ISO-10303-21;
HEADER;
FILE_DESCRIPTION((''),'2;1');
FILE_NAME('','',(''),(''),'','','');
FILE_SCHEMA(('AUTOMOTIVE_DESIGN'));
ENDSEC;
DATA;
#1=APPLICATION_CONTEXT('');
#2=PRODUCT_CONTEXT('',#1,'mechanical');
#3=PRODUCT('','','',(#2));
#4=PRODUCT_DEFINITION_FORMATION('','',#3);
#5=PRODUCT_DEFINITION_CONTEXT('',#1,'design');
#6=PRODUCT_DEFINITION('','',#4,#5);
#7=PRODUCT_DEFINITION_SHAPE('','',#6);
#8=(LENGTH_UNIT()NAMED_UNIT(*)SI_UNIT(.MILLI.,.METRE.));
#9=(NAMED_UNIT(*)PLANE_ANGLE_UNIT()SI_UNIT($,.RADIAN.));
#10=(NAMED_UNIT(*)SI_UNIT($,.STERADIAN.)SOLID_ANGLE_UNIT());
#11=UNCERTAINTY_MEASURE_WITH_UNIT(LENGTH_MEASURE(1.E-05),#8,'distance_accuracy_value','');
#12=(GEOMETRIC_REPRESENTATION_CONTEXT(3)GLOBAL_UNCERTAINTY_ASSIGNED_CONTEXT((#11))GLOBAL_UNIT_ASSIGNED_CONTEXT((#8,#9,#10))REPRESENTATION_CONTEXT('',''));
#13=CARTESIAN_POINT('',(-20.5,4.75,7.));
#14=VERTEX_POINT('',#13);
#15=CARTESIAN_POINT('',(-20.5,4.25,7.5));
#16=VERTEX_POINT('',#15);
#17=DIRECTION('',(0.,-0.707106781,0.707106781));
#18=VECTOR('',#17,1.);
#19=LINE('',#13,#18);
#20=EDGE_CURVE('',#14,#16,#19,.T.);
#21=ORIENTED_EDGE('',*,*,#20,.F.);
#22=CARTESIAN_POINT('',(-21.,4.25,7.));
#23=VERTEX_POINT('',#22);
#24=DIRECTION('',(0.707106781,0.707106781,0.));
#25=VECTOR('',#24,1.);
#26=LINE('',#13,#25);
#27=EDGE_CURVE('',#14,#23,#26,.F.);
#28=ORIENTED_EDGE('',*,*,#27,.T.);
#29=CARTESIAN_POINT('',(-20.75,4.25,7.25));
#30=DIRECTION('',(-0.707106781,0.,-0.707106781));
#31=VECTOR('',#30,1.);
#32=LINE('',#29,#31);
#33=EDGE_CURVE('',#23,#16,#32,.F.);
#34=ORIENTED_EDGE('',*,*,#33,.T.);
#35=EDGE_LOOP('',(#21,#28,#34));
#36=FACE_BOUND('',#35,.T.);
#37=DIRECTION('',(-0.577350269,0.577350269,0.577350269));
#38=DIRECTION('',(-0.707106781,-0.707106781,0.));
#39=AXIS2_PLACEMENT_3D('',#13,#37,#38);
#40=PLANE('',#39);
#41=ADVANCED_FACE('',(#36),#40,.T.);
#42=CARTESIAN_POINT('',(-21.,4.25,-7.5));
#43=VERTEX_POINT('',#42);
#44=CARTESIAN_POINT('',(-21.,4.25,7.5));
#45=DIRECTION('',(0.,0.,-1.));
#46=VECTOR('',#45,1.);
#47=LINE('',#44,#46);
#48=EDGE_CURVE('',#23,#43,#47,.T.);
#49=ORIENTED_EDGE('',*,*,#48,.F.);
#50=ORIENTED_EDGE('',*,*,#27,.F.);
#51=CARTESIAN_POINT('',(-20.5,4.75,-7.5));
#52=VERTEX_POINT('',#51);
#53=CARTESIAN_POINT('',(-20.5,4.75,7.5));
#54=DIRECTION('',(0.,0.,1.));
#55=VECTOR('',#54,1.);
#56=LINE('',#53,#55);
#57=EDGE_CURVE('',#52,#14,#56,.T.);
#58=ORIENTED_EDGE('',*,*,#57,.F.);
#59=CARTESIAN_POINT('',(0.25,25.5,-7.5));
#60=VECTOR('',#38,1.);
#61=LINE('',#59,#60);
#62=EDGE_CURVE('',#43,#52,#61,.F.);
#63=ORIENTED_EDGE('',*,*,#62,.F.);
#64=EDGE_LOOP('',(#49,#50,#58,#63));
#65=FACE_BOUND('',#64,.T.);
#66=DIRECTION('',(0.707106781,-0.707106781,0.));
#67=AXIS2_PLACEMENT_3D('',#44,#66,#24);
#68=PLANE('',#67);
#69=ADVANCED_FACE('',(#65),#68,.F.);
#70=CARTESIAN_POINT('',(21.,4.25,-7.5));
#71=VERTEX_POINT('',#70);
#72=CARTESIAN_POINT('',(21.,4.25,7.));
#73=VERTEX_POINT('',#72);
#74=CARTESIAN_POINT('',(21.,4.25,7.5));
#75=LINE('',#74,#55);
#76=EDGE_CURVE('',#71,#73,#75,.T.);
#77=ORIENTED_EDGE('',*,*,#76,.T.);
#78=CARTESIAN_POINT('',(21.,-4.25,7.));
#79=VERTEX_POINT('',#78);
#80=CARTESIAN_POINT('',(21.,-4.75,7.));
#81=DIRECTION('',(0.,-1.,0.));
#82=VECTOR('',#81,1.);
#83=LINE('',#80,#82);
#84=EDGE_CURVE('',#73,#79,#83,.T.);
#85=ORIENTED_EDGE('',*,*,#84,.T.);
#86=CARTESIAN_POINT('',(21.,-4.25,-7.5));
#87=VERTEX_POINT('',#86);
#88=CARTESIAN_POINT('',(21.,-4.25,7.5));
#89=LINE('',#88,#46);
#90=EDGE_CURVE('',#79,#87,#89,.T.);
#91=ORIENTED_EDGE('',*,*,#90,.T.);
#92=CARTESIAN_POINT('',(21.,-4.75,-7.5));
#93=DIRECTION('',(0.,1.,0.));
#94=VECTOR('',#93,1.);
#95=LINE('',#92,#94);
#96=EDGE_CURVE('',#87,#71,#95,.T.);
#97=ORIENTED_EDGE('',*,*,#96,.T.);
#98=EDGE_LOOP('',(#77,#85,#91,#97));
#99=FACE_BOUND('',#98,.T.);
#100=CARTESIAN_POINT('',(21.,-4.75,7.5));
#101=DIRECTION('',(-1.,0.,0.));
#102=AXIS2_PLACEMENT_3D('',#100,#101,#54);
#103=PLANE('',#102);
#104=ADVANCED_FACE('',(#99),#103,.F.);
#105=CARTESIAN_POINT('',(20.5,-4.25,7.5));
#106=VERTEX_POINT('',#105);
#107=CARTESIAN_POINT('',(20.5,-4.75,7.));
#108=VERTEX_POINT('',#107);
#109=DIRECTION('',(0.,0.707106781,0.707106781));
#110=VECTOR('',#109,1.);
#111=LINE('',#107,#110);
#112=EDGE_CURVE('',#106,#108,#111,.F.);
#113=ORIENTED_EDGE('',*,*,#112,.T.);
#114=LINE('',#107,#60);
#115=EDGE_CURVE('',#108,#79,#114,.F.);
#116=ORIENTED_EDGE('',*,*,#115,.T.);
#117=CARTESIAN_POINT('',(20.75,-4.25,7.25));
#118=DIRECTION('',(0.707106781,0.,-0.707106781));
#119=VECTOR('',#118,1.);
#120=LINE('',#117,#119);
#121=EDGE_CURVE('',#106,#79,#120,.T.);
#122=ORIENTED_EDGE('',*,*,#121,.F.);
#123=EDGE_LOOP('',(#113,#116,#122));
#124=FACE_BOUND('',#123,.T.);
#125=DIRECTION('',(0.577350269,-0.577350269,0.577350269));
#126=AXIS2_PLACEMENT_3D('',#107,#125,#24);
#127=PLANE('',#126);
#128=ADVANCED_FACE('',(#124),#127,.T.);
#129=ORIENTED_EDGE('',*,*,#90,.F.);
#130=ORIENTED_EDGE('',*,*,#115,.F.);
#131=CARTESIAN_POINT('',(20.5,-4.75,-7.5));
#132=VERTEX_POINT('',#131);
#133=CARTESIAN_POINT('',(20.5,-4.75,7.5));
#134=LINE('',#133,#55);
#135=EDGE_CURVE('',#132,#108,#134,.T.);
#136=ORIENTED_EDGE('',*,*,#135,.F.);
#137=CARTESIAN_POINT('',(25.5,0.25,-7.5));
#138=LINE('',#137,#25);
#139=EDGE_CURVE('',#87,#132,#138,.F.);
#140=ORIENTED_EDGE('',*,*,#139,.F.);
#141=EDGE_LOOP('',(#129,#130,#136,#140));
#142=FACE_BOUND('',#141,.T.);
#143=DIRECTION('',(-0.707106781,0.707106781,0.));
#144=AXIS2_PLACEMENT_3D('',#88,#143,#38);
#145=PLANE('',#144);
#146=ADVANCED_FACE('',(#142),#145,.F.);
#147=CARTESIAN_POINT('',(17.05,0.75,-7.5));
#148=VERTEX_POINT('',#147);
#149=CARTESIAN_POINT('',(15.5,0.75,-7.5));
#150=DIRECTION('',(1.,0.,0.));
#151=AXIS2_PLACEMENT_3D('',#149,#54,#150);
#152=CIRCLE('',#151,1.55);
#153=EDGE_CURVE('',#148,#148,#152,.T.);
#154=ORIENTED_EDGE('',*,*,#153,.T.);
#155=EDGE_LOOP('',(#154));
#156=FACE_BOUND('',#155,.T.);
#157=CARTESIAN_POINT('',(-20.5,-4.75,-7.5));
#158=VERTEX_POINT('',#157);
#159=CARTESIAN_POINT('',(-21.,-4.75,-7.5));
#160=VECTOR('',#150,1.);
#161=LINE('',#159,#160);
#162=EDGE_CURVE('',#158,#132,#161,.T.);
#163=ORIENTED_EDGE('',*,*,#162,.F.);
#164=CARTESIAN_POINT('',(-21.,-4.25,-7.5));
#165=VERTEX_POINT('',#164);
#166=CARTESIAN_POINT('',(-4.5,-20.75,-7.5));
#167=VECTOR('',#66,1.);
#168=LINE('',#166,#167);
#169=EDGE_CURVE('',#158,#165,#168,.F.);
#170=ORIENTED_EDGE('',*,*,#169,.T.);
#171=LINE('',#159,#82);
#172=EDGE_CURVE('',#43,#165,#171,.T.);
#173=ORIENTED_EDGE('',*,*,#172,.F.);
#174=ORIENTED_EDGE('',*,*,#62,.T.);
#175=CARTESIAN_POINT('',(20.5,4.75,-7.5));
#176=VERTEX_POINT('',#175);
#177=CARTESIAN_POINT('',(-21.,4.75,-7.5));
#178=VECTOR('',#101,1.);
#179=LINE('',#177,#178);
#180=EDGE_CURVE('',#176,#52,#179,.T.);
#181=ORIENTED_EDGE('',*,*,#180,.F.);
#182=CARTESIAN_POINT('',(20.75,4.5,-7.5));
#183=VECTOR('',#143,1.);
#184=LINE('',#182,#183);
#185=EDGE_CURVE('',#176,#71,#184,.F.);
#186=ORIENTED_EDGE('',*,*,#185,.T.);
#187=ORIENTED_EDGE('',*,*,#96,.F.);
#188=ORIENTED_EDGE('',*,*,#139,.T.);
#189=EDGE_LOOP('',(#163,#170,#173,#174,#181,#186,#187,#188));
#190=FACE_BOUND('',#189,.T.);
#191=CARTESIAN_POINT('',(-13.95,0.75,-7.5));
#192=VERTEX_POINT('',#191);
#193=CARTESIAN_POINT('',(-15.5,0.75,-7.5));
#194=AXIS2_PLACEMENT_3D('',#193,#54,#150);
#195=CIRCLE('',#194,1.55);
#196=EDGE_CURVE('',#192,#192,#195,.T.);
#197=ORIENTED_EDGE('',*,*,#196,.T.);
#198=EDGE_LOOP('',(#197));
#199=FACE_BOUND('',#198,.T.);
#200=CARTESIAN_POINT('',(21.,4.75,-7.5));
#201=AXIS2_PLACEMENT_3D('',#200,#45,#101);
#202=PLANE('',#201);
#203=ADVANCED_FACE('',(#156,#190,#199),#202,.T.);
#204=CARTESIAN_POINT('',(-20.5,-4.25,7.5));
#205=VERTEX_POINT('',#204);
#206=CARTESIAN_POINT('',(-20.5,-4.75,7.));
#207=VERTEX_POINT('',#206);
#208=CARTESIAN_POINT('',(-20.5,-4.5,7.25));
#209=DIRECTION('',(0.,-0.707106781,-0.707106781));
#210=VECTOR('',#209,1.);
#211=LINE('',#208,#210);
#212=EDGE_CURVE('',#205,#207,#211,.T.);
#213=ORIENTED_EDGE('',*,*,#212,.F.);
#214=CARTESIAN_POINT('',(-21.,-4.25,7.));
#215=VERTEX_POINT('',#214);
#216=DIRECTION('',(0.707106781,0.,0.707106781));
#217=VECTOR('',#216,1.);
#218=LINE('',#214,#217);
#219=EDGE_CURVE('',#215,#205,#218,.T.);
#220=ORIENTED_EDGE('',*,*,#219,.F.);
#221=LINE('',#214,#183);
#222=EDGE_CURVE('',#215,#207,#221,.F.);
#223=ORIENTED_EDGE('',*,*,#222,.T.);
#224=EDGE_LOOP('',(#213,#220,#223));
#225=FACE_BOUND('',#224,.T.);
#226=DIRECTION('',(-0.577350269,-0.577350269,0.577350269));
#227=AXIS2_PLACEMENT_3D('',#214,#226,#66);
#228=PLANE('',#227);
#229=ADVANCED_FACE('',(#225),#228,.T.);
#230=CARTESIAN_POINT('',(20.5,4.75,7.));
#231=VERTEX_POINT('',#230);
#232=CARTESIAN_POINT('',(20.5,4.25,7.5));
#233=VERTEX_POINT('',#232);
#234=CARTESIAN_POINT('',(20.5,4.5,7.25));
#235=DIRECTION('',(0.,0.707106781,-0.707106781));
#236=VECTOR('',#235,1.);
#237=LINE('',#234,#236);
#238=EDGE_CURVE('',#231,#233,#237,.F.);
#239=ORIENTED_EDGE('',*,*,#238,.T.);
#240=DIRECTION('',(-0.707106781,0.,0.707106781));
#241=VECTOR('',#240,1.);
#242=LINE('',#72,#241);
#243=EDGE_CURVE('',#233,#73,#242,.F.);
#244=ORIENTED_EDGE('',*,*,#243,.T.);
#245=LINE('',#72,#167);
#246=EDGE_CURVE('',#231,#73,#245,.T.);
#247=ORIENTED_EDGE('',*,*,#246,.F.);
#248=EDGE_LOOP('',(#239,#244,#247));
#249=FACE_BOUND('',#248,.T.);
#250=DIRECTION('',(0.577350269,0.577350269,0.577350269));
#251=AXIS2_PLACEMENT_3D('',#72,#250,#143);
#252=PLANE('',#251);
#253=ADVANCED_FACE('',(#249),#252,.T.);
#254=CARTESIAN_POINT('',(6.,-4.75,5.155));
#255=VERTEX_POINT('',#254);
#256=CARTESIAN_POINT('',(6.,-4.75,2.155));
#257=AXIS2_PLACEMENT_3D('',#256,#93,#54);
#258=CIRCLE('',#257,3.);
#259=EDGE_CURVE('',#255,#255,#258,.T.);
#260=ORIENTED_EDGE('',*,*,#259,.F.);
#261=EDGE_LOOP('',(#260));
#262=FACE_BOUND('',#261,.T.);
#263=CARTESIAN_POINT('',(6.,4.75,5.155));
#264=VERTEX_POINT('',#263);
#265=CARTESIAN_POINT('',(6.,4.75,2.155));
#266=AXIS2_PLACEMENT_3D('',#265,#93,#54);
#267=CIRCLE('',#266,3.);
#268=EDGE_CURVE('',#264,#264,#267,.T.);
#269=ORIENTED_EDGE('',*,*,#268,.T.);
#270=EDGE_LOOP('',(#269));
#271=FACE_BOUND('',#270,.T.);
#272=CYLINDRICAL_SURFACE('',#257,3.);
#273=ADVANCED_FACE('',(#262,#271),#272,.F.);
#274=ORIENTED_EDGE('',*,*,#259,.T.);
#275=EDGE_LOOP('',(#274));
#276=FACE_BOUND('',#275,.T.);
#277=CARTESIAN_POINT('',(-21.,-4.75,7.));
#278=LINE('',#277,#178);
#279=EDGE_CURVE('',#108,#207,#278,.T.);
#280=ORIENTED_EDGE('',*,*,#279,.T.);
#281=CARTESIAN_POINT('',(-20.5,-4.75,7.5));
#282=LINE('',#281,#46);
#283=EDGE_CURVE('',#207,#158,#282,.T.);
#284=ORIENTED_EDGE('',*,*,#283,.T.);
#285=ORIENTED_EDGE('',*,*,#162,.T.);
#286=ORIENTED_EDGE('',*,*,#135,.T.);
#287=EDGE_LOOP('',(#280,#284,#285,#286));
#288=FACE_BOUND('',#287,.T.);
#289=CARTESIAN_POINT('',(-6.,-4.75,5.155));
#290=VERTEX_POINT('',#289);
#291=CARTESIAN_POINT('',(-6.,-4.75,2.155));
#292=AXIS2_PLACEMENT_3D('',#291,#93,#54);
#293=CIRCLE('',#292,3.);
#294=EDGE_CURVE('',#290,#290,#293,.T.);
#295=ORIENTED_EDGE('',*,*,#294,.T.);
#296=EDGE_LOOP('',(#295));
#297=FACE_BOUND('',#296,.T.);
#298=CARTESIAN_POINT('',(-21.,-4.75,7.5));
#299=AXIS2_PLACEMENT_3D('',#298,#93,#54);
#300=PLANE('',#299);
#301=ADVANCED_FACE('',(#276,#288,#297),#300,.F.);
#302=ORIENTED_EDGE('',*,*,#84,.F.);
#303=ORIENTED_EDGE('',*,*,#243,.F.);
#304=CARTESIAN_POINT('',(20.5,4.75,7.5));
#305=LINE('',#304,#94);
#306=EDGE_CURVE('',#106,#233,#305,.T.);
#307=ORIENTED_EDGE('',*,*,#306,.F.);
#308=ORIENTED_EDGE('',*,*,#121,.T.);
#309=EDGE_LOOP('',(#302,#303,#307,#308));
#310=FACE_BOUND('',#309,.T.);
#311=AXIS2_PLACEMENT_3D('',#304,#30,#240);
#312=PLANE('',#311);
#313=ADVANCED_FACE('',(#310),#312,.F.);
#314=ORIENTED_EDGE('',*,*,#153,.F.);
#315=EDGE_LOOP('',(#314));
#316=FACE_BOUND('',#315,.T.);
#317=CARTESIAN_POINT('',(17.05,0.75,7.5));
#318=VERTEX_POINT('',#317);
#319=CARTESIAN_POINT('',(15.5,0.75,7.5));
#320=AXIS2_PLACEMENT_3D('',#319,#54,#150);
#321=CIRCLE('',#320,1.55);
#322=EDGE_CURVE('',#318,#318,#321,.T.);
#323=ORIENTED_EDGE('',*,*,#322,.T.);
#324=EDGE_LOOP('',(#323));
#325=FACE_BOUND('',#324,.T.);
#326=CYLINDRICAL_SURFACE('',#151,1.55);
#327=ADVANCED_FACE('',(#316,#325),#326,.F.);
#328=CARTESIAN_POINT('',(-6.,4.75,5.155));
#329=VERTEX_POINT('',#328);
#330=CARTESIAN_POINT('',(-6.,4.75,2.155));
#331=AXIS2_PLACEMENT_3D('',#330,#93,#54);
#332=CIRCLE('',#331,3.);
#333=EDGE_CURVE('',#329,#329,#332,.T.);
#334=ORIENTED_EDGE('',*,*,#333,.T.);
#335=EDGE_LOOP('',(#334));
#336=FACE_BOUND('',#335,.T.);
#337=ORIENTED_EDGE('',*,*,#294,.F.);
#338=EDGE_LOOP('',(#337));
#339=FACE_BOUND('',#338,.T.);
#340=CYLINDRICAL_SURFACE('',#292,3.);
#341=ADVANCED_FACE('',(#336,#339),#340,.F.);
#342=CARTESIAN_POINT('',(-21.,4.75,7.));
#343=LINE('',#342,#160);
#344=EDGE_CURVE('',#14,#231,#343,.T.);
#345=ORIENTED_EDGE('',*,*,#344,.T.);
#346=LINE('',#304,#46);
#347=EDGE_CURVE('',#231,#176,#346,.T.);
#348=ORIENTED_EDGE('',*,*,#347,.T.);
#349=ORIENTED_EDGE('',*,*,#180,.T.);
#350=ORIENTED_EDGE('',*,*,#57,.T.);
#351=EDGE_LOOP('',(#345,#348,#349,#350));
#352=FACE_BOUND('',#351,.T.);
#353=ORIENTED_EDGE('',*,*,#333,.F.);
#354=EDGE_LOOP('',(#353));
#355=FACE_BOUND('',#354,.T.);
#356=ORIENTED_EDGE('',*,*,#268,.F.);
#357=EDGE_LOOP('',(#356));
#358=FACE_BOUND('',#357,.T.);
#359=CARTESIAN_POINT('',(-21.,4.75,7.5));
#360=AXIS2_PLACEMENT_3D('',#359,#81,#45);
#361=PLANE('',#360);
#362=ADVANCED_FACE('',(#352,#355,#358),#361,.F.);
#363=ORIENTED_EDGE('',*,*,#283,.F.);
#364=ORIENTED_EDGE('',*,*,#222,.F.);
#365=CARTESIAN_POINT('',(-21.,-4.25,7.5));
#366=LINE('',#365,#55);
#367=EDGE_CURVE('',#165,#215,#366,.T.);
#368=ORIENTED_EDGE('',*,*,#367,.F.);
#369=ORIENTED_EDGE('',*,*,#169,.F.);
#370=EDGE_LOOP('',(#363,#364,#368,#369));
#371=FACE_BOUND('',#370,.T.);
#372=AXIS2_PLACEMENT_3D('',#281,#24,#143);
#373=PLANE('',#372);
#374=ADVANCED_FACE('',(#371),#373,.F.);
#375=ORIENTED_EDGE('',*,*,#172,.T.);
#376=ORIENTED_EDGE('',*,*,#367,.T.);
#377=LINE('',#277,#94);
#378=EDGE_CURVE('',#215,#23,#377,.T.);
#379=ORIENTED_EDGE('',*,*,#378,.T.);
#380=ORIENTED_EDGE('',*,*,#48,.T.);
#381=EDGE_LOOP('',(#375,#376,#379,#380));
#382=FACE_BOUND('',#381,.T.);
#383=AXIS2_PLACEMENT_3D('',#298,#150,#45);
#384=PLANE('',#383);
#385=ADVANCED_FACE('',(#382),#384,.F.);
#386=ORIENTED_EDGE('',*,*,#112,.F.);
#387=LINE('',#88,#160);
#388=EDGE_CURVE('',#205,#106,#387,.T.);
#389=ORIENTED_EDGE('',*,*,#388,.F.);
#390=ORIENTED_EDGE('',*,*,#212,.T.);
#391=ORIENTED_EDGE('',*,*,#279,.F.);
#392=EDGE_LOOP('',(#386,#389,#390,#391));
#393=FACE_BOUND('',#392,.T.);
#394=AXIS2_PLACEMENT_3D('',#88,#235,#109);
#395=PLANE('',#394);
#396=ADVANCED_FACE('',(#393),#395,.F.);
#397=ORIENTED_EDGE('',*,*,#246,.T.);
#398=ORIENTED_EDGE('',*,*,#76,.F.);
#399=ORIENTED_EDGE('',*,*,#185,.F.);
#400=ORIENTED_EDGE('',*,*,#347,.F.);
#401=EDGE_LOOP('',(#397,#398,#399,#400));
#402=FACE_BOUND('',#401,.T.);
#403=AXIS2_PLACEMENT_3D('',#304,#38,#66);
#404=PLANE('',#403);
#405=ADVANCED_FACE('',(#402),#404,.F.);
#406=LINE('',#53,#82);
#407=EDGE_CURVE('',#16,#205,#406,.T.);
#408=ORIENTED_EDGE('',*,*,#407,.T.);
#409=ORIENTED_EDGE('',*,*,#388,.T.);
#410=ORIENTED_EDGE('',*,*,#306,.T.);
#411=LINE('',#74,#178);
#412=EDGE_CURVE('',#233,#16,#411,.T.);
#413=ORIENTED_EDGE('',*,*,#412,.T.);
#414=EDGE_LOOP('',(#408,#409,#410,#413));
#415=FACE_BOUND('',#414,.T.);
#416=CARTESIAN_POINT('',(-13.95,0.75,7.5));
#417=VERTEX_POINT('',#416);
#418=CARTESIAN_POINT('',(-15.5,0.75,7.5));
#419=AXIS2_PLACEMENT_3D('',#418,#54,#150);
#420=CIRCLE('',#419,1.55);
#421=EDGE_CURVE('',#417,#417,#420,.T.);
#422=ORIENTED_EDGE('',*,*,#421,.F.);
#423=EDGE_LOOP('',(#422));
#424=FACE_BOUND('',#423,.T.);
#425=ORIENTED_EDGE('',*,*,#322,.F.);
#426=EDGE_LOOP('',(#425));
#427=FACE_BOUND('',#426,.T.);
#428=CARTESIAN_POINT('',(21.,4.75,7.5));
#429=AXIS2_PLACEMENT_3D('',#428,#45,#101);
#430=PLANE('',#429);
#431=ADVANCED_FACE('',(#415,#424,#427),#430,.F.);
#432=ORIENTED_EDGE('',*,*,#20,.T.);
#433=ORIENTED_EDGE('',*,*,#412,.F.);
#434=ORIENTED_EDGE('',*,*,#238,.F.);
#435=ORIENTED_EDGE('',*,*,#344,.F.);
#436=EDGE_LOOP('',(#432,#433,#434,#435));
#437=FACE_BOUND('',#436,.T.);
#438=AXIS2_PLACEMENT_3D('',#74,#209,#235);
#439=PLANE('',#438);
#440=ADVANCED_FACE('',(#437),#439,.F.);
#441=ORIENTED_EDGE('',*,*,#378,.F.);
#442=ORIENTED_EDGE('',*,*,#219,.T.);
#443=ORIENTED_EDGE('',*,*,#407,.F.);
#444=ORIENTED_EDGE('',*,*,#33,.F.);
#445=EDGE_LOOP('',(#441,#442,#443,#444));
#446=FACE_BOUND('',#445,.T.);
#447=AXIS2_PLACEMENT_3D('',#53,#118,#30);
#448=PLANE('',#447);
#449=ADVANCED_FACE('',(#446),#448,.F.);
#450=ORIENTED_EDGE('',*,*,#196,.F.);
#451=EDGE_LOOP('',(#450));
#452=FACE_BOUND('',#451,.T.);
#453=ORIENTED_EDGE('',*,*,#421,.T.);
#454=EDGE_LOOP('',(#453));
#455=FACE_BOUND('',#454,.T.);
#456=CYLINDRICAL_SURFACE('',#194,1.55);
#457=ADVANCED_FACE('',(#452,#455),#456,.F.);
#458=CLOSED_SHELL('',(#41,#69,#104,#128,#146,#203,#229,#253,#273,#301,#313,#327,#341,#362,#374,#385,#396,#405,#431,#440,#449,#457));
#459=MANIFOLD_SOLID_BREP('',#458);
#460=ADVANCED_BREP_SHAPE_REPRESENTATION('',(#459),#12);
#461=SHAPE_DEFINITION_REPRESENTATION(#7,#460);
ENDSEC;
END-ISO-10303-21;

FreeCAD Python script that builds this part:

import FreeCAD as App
import Part
import Sketcher

V = App.Vector
Q = App.Units.Quantity


def edges_at(feature, points):
    """Names of the edges that pass closest to the given points."""
    edges = feature.Shape.Edges
    near = lambda p: min(range(len(edges)), key=lambda i: edges[i].distToShape(Part.Vertex(*p))[0])
    return sorted({f"Edge{near(p) + 1}" for p in points})


def add_polygon(sketch, points):
    """Adds a closed chain of lines whose ends are joined by coincident constraints."""
    first, n = sketch.GeometryCount, len(points)
    for a, b in zip(points, points[1:] + points[:1]):
        sketch.addGeometry(Part.LineSegment(App.Vector(*a, 0), App.Vector(*b, 0)), False)
    for i in range(n):
        sketch.addConstraint(Sketcher.Constraint("Coincident", first + i, 2, first + (i + 1) % n, 1))

doc = App.newDocument("Part")
params = doc.addObject("Spreadsheet::Sheet", "Params")
for row, (alias, value) in enumerate([
    ("sketch1_width", "42 mm"),
    ("sketch1_height", "9.5 mm"),
    ("pad1_length", "15 mm"),
    ("sketch2_diameter", "3.1 mm"),
    ("sketch3_diameter", "6 mm"),
    ("chamfer_size", "0.5 mm"),
], start=1):
    params.set(f"A{row}", alias)
    params.set(f"B{row}", "=" + value)
    params.setAlias(f"B{row}", alias)

body = doc.addObject("PartDesign::Body", "Body")

# Sketch on XY plane
sketch1 = body.newObject("Sketcher::SketchObject", "Sketch")
sketch1.AttachmentSupport = (doc.getObject("XY_Plane"), [""])
sketch1.MapMode = "FlatFace"
add_polygon(sketch1, [(-21, 5), (-21, -5), (21, -5), (21, 5)])  # lines 0-3
sketch1.addConstraint(Sketcher.Constraint("Vertical", 0))
sketch1.addConstraint(Sketcher.Constraint("Horizontal", 1))
sketch1.addConstraint(Sketcher.Constraint("Vertical", 2))
sketch1.addConstraint(Sketcher.Constraint("Horizontal", 3))
sketch1.addConstraint(Sketcher.Constraint("Symmetric", 0, 2, 2, 2, -1, 1))
sketch1.addConstraint(Sketcher.Constraint("DistanceX", 1, 1, 1, 2, Q("42 mm")))
sketch1.addConstraint(Sketcher.Constraint("DistanceY", 0, 2, 0, 1, Q("9.5 mm")))
sketch1.setExpression("Constraints[9]", "Params.sketch1_width")
sketch1.setExpression("Constraints[10]", "Params.sketch1_height")
pad1 = body.newObject("PartDesign::Pad", "Pad")
pad1.Profile = sketch1
pad1.setExpression("Length", "Params.pad1_length")
pad1.Midplane = True

# Sketch on XY plane
sketch2 = body.newObject("Sketcher::SketchObject", "Sketch001")
sketch2.AttachmentSupport = (doc.getObject("XY_Plane"), [""])
sketch2.MapMode = "FlatFace"
sketch2.AttachmentOffset = App.Placement(V(0, 0, 7.5), App.Rotation())
sketch2.addGeometry(Part.Circle(V(-15.5, 0.8, 0), V(0, 0, 1), 1.6), False)
sketch2.addGeometry(Part.Circle(V(15.5, 0.8, 0), V(0, 0, 1), 1.6), False)
sketch2.addConstraint(Sketcher.Constraint("Equal", 0, 1))
sketch2.addConstraint(Sketcher.Constraint("Symmetric", 0, 3, 1, 3, -2))
sketch2.addConstraint(Sketcher.Constraint("Diameter", 0, Q("3.1 mm")))
sketch2.addConstraint(Sketcher.Constraint("DistanceX", 0, 3, 1, 3, Q("31 mm")))
sketch2.addConstraint(Sketcher.Constraint("DistanceY", -1, 1, 0, 3, Q("0.75 mm")))
sketch2.setExpression("Constraints[2]", "Params.sketch2_diameter")
pocket1 = body.newObject("PartDesign::Pocket", "Pocket")
pocket1.Profile = sketch2
pocket1.Type = "ThroughAll"

# Sketch on XZ plane
sketch3 = body.newObject("Sketcher::SketchObject", "Sketch002")
sketch3.AttachmentSupport = (doc.getObject("XZ_Plane"), [""])
sketch3.MapMode = "FlatFace"
sketch3.AttachmentOffset = App.Placement(V(0, 0, -4.75), App.Rotation())
sketch3.addGeometry(Part.Circle(V(6, 2.2, 0), V(0, 0, 1), 3), False)
sketch3.addGeometry(Part.Circle(V(-6, 2.2, 0), V(0, 0, 1), 3), False)
sketch3.addConstraint(Sketcher.Constraint("Equal", 0, 1))
sketch3.addConstraint(Sketcher.Constraint("Symmetric", 0, 3, 1, 3, -2))
sketch3.addConstraint(Sketcher.Constraint("Diameter", 0, Q("6 mm")))
sketch3.addConstraint(Sketcher.Constraint("DistanceX", -1, 1, 0, 3, Q("6 mm")))
sketch3.addConstraint(Sketcher.Constraint("DistanceY", -1, 1, 0, 3, Q("2.155 mm")))
sketch3.setExpression("Constraints[2]", "Params.sketch3_diameter")
pocket2 = body.newObject("PartDesign::Pocket", "Pocket001")
pocket2.Profile = sketch3
pocket2.Type = "ThroughAll"
pocket2.Reversed = True
doc.recompute()

chamfer = body.newObject("PartDesign::Chamfer", "Chamfer")
chamfer.Base = (pocket2, edges_at(pocket2, [
    (-21, 0, 7.5),
    (0, -4.75, 7.5),
    (21, 0, 7.5),
    (0, 4.75, 7.5),
    (21, -4.75, 0),
    (-21, -4.75, 0),
    (-21, 4.75, 0),
    (21, 4.75, 0),
]))
chamfer.setExpression("Size", "Params.chamfer_size")

doc.recompute()
